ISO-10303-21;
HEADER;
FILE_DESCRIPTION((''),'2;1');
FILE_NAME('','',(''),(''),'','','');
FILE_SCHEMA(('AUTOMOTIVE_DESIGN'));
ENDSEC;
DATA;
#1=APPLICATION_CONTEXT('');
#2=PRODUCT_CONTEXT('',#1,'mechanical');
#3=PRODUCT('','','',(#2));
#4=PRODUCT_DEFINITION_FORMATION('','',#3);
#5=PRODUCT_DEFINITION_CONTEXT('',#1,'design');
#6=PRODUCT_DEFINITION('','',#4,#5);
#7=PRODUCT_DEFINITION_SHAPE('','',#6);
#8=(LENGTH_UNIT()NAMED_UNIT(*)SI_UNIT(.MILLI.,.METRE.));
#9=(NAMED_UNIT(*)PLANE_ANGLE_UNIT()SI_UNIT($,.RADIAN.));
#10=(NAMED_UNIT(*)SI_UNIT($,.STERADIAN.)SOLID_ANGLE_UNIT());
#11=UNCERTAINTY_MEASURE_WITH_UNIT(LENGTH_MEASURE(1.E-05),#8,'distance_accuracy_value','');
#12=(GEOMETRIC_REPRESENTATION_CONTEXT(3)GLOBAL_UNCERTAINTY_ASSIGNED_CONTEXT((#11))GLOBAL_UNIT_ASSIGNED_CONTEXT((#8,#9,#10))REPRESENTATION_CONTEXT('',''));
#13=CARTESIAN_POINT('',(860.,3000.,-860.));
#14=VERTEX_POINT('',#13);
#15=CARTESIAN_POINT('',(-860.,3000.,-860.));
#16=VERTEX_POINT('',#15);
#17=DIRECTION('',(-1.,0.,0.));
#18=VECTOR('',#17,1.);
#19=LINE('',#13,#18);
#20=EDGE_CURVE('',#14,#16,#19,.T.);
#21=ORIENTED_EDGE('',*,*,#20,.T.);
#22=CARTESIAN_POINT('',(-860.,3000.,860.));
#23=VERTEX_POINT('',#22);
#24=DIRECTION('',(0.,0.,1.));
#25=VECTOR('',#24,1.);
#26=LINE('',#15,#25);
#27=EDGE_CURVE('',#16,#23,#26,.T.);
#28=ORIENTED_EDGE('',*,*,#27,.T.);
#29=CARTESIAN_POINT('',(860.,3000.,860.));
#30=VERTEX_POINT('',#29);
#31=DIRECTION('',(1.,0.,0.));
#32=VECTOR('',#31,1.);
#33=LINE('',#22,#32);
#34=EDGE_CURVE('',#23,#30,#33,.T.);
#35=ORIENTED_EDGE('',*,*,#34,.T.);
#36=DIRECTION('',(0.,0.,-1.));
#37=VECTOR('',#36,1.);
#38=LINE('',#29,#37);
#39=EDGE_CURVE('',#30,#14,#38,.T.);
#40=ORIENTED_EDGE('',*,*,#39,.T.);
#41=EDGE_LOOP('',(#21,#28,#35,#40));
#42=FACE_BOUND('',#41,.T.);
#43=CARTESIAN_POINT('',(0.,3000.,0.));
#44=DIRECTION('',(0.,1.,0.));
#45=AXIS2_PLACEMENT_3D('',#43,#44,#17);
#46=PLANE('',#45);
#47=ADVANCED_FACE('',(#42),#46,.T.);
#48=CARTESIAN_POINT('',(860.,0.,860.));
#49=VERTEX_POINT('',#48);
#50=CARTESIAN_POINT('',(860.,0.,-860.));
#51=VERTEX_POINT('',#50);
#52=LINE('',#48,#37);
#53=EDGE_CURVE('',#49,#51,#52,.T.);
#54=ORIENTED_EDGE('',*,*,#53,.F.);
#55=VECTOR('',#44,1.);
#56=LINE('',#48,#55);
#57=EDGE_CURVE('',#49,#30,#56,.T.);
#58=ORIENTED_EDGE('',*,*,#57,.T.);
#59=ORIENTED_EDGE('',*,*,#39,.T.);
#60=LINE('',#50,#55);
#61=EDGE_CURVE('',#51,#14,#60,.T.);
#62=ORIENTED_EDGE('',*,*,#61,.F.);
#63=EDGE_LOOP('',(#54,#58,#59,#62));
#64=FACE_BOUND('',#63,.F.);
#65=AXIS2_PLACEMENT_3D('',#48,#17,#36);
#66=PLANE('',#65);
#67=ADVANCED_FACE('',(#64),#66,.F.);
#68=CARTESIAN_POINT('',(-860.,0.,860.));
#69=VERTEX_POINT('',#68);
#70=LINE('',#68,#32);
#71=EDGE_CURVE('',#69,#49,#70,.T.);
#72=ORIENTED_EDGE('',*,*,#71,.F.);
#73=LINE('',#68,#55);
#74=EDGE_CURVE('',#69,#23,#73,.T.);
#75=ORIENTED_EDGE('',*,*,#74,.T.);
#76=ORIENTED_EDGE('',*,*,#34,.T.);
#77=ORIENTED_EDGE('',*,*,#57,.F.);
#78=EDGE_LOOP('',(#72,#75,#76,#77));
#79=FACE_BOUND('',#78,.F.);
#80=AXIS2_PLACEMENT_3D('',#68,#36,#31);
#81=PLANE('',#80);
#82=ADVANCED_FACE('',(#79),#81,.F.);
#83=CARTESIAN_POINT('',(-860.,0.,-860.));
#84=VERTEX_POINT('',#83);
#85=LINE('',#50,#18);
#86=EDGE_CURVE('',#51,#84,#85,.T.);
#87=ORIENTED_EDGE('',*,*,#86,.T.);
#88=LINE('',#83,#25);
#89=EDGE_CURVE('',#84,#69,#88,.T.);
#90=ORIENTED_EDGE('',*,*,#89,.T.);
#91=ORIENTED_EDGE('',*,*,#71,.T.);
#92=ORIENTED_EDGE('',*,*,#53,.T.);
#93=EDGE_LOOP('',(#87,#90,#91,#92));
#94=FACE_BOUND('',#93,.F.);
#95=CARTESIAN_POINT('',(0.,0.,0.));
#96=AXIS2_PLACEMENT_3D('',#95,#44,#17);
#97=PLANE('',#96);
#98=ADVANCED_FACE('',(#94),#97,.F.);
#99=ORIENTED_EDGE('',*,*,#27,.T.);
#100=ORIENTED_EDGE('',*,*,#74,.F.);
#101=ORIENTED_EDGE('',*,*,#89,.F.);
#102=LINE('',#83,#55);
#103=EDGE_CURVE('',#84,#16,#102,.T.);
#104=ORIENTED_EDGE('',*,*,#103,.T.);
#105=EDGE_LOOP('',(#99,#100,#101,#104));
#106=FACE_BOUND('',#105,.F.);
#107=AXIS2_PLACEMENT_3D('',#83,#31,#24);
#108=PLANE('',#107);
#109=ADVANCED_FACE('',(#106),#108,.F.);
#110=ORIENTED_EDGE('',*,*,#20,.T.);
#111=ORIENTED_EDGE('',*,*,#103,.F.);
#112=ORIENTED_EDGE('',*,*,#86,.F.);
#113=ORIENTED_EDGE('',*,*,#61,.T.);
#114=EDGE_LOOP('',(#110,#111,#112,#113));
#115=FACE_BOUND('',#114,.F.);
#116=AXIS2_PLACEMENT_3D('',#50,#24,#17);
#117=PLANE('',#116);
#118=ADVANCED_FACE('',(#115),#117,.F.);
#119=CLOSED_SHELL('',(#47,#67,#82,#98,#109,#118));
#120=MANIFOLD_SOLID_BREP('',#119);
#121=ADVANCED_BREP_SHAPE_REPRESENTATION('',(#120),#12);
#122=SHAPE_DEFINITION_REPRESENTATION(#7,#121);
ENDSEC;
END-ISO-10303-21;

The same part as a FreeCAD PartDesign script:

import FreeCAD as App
import Part
import Sketcher

doc = App.newDocument("Part")
body = doc.addObject("PartDesign::Body", "Body")

# Sketch on XZ plane
sketch1 = body.newObject("Sketcher::SketchObject", "Sketch")
sketch1.AttachmentSupport = (doc.getObject("XZ_Plane"), [""])
sketch1.MapMode = "FlatFace"
sketch1.addGeometry(Part.LineSegment(App.Vector(-860, -860, 0), App.Vector(-860, 860, 0)), False)
sketch1.addGeometry(Part.LineSegment(App.Vector(-860, 860, 0), App.Vector(860, 860, 0)), False)
sketch1.addGeometry(Part.LineSegment(App.Vector(860, 860, 0), App.Vector(860, -860, 0)), False)
sketch1.addGeometry(Part.LineSegment(App.Vector(860, -860, 0), App.Vector(-860, -860, 0)), False)
sketch1.addConstraint(Sketcher.Constraint("Coincident", 0, 2, 1, 1))
sketch1.addConstraint(Sketcher.Constraint("Coincident", 1, 2, 2, 1))
sketch1.addConstraint(Sketcher.Constraint("Coincident", 2, 2, 3, 1))
sketch1.addConstraint(Sketcher.Constraint("Coincident", 3, 2, 0, 1))
sketch1.addConstraint(Sketcher.Constraint("Vertical", 0))
sketch1.addConstraint(Sketcher.Constraint("Horizontal", 1))
sketch1.addConstraint(Sketcher.Constraint("Vertical", 2))
sketch1.addConstraint(Sketcher.Constraint("Horizontal", 3))
sketch1.addConstraint(Sketcher.Constraint("Symmetric", 0, 2, 2, 2, -1, 1))
sketch1.addConstraint(Sketcher.Constraint("Equal", 3, 0))
sketch1.addConstraint(Sketcher.Constraint("DistanceX", 1, 1, 1, 2, 1720.0))
pad1 = body.newObject("PartDesign::Pad", "Pad")
pad1.Profile = sketch1
pad1.Length = 3000
pad1.Reversed = True

doc.recompute()
